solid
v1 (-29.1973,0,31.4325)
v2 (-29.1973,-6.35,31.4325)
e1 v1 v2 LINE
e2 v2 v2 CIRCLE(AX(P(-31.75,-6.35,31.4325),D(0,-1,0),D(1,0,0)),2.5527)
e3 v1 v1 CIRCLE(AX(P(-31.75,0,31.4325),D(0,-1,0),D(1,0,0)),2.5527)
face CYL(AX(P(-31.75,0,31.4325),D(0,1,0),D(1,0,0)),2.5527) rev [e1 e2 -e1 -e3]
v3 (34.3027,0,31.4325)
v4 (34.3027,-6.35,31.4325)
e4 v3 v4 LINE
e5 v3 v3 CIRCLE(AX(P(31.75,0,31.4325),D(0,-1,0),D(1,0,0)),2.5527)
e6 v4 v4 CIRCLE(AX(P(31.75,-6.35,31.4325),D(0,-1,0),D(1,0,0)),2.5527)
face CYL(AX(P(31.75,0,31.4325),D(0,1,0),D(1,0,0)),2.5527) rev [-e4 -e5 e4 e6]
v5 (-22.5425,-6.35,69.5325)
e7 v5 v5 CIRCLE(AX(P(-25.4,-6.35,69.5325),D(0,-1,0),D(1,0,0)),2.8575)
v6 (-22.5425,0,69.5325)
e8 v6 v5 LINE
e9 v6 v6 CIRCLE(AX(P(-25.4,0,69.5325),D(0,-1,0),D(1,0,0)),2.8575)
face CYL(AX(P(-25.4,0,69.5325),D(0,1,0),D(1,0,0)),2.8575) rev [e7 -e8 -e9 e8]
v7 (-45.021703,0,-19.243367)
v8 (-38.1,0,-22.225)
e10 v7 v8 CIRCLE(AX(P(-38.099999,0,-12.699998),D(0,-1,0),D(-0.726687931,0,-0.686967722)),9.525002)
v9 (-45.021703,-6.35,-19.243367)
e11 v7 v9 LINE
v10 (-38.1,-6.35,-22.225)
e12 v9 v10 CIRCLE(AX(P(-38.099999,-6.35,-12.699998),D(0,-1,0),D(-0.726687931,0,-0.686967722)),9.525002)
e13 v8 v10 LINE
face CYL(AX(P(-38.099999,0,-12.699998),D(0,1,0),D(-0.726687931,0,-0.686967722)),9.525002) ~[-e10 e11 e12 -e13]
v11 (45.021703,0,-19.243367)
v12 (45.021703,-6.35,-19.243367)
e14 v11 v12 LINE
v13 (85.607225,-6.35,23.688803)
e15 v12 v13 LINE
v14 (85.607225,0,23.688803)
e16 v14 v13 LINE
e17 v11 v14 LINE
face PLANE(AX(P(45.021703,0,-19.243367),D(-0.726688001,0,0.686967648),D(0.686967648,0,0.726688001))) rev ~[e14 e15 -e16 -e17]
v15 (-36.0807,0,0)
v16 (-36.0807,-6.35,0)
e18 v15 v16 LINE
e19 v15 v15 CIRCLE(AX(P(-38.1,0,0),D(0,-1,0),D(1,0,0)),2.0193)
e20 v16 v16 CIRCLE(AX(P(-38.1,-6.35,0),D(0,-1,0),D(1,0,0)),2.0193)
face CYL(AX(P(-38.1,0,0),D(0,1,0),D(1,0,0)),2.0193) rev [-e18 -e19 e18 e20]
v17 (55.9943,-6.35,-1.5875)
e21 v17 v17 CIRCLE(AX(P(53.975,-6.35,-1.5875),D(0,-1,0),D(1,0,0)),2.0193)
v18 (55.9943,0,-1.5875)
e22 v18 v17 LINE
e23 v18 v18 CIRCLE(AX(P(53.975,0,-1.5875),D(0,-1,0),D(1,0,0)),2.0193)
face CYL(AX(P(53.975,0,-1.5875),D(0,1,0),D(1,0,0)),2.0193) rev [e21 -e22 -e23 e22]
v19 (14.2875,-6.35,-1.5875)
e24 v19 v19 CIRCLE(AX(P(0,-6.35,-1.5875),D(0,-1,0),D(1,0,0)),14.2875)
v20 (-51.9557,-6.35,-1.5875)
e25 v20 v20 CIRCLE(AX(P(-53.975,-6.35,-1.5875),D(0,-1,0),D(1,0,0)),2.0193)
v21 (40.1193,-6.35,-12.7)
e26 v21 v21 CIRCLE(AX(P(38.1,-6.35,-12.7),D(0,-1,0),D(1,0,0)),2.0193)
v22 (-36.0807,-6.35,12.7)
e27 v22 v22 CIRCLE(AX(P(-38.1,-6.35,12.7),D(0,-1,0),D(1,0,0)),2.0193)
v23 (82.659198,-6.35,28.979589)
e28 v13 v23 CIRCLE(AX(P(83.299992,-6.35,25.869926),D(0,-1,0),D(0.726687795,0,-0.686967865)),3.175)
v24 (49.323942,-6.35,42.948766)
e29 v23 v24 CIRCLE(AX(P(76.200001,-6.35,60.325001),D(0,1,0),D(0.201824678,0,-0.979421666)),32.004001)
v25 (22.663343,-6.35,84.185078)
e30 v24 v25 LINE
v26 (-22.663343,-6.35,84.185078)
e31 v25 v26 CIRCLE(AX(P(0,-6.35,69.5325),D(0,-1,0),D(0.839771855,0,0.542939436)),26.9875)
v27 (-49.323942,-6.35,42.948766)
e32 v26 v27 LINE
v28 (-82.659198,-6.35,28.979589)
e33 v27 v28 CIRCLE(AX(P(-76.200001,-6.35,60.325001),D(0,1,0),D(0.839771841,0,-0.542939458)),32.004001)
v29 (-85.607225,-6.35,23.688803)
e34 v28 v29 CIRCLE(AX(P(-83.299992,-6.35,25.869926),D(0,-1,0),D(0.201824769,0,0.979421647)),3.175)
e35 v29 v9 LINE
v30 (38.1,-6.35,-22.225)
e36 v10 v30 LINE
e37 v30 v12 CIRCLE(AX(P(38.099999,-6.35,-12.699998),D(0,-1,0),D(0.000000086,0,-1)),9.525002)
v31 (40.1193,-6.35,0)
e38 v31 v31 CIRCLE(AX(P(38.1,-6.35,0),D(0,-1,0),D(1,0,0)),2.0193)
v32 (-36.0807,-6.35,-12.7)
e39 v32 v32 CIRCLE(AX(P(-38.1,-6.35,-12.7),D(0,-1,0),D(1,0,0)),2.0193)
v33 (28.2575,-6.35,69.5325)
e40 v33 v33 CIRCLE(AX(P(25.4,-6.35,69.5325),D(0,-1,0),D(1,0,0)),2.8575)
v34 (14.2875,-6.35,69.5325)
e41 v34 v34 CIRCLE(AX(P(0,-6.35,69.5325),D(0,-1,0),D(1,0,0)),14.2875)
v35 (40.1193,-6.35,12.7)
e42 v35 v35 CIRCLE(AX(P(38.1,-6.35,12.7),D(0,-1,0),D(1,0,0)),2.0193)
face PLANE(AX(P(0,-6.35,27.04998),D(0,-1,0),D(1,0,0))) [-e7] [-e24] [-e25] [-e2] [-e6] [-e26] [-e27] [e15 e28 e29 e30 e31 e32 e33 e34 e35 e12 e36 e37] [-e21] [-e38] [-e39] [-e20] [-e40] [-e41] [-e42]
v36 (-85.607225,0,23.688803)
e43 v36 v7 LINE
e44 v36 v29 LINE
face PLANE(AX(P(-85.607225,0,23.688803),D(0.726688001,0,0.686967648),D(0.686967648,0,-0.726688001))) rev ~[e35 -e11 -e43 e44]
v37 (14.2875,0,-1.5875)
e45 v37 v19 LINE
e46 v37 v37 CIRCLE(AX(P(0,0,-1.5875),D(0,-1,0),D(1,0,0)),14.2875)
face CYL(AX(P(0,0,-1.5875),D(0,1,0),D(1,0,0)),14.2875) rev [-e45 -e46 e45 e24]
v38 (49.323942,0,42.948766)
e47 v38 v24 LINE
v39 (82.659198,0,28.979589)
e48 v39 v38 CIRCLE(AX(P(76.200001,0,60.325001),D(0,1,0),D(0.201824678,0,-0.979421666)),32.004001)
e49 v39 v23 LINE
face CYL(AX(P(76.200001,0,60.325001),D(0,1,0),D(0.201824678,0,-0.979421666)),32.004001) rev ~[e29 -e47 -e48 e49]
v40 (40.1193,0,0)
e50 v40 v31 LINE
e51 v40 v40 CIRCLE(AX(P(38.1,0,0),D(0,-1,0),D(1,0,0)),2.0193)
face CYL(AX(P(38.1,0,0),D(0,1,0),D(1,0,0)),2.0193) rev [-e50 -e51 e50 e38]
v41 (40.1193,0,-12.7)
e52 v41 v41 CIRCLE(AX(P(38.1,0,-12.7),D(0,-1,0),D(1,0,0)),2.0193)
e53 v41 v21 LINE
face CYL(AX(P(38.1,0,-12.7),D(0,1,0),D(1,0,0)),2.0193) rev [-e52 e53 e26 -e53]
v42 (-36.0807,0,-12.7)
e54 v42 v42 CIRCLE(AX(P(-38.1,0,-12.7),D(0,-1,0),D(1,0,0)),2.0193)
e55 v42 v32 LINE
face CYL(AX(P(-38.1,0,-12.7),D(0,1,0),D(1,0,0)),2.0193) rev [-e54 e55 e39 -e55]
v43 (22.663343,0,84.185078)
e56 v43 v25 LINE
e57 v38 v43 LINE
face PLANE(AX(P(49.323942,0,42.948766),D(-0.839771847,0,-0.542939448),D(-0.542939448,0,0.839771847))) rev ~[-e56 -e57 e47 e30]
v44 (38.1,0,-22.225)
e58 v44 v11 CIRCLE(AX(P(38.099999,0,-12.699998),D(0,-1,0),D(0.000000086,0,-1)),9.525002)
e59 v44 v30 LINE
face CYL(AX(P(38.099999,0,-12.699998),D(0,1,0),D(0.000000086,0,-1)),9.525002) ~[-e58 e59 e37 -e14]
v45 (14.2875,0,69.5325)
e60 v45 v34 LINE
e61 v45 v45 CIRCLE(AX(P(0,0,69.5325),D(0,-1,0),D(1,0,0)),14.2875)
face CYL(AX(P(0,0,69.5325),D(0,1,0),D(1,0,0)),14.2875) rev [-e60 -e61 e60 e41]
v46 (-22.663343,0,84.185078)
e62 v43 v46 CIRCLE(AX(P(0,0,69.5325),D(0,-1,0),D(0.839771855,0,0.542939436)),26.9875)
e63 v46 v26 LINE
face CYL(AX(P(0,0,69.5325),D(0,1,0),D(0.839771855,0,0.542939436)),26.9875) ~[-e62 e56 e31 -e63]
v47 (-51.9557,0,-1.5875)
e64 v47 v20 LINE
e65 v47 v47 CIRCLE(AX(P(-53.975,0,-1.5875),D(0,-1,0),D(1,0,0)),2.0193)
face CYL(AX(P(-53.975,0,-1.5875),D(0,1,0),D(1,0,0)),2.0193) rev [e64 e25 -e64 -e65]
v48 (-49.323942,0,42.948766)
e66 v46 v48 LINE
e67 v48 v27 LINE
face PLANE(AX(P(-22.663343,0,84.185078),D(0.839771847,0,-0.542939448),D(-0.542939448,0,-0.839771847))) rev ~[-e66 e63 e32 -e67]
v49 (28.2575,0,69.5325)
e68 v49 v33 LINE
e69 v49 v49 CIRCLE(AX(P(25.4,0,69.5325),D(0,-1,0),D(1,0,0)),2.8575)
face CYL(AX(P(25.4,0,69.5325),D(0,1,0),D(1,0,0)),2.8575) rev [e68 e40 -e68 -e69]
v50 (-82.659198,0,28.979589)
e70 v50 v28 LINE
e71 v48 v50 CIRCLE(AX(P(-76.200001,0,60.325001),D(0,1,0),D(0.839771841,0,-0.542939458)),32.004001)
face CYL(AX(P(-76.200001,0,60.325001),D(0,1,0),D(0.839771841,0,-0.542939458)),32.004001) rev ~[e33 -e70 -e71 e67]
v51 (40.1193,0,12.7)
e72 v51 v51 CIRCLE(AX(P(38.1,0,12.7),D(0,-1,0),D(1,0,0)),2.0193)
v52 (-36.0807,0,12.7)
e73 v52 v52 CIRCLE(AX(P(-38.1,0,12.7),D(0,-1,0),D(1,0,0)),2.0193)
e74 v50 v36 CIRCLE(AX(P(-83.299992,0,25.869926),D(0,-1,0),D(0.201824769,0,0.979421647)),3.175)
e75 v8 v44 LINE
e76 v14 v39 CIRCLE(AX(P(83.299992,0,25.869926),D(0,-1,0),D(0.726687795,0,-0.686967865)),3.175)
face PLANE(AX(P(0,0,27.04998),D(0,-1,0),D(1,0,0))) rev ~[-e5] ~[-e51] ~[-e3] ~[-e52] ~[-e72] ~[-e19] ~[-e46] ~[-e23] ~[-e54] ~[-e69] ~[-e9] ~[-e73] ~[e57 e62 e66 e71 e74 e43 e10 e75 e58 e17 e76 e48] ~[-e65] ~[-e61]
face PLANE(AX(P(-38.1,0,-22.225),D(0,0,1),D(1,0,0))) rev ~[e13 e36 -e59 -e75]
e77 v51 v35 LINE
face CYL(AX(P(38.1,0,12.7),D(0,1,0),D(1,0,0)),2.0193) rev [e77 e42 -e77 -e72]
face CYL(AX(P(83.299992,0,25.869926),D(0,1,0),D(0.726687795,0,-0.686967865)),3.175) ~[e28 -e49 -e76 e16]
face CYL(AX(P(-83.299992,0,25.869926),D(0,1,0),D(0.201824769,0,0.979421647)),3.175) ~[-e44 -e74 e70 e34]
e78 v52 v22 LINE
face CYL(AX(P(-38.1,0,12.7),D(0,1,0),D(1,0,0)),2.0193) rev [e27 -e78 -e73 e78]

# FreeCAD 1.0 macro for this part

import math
import FreeCAD as App
import Part
import Sketcher
from FreeCAD import Vector
Q = App.Units.Quantity

doc = App.newDocument("Part")
params = doc.addObject("Spreadsheet::Sheet", "Params")
for row, (alias, value) in enumerate([
    ("sketch1_width", "3 in"),
    ("sketch1_radius", "1.26 in"),
    ("sketch1_diameter", "0.159 in"),
    ("sketch1_diameter2", "1.125 in"),
    ("sketch1_diameter3", "0.201 in"),
    ("pad1_length", "0.25 in"),
], start=1):
    params.set(f"A{row}", alias)
    params.set(f"B{row}", "=" + value)
    params.setAlias(f"B{row}", alias)

body = doc.addObject("PartDesign::Body", "Body")

# Sketch on XZ plane
sketch1 = doc.addObject("Sketcher::SketchObject", "Sketch")
body.addObject(sketch1)
sketch1.AttachmentSupport = (doc.XZ_Plane, [""])
sketch1.MapMode = "FlatFace"
sketch1.addGeometry([
    Part.ArcOfCircle(Part.Circle(Vector(-76.200001, 60.325001, 0), Vector(0, 0, 1), 32.004001), math.radians(-101.643682), math.radians(-32.883966)),  # 0
    Part.ArcOfCircle(Part.Circle(Vector(-83.299992, 25.869926, 0), Vector(0, 0, 1), 3.175), math.radians(78.356313), math.radians(223.390566)),  # 1
    Part.LineSegment(Vector(-85.607225, 23.688803, 0), Vector(-45.021703, -19.243367, 0)),  # 2
    Part.ArcOfCircle(Part.Circle(Vector(-38.099999, -12.699998, 0), Vector(0, 0, 1), 9.525002), math.radians(-136.609446), math.radians(-90.000005)),  # 3
    Part.LineSegment(Vector(-38.1, -22.225, 0), Vector(38.1, -22.225, 0)),  # 4
    Part.ArcOfCircle(Part.Circle(Vector(38.099999, -12.699998, 0), Vector(0, 0, 1), 9.525002), math.radians(-89.999995), math.radians(-43.390554)),  # 5
    Part.LineSegment(Vector(45.021703, -19.243367, 0), Vector(85.607225, 23.688803, 0)),  # 6
    Part.ArcOfCircle(Part.Circle(Vector(83.299992, 25.869926, 0), Vector(0, 0, 1), 3.175), math.radians(-43.390566), math.radians(101.643687)),  # 7
    Part.ArcOfCircle(Part.Circle(Vector(76.200001, 60.325001, 0), Vector(0, 0, 1), 32.004001), math.radians(-147.116034), math.radians(-78.356318)),  # 8
    Part.LineSegment(Vector(49.323942, 42.948766, 0), Vector(22.663343, 84.185078, 0)),  # 9
    Part.ArcOfCircle(Part.Circle(Vector(0, 69.5325, 0), Vector(0, 0, 1), 26.9875), math.radians(32.883964), math.radians(147.116036)),  # 10
    Part.LineSegment(Vector(-22.663343, 84.185078, 0), Vector(-49.323942, 42.948766, 0)),  # 11
    Part.Circle(Vector(-38.1, -12.7, 0), Vector(0, 0, 1), 2.0193),  # 12
    Part.Circle(Vector(-53.975, -1.5875, 0), Vector(0, 0, 1), 2.0193),  # 13
    Part.Circle(Vector(-38.1, 0, 0), Vector(0, 0, 1), 2.0193),  # 14
    Part.Circle(Vector(0, -1.5875, 0), Vector(0, 0, 1), 14.2875),  # 15
    Part.Circle(Vector(-38.1, 12.7, 0), Vector(0, 0, 1), 2.0193),  # 16
    Part.Circle(Vector(-31.75, 31.4325, 0), Vector(0, 0, 1), 2.5527),  # 17
    Part.Circle(Vector(38.1, -12.7, 0), Vector(0, 0, 1), 2.0193),  # 18
    Part.Circle(Vector(38.1, 0, 0), Vector(0, 0, 1), 2.0193),  # 19
    Part.Circle(Vector(53.975, -1.5875, 0), Vector(0, 0, 1), 2.0193),  # 20
    Part.Circle(Vector(38.1, 12.7, 0), Vector(0, 0, 1), 2.0193),  # 21
    Part.Circle(Vector(31.75, 31.4325, 0), Vector(0, 0, 1), 2.5527),  # 22
    Part.Circle(Vector(-25.4, 69.5325, 0), Vector(0, 0, 1), 2.8575),  # 23
    Part.Circle(Vector(0, 69.5325, 0), Vector(0, 0, 1), 14.2875),  # 24
    Part.Circle(Vector(25.4, 69.5325, 0), Vector(0, 0, 1), 2.8575),  # 25
], False)
sketch1.addConstraint([
    Sketcher.Constraint("Tangent", 0, 1, 1, 1),
    Sketcher.Constraint("Tangent", 1, 2, 2, 1),
    Sketcher.Constraint("Tangent", 2, 2, 3, 1),
    Sketcher.Constraint("Tangent", 3, 2, 4, 1),
    Sketcher.Constraint("Tangent", 4, 2, 5, 1),
    Sketcher.Constraint("Tangent", 5, 2, 6, 1),
    Sketcher.Constraint("Tangent", 6, 2, 7, 1),
    Sketcher.Constraint("Tangent", 7, 2, 8, 2),
    Sketcher.Constraint("Tangent", 8, 1, 9, 1),
    Sketcher.Constraint("Tangent", 9, 2, 10, 1),
    Sketcher.Constraint("Tangent", 10, 2, 11, 1),
    Sketcher.Constraint("Tangent", 11, 2, 0, 2),
    Sketcher.Constraint("Horizontal", 4),
    Sketcher.Constraint("Coincident", 12, 3, 3, 3),
    Sketcher.Constraint("Coincident", 18, 3, 5, 3),
    Sketcher.Constraint("Coincident", 24, 3, 10, 3),
    Sketcher.Constraint("Equal", 3, 5),
    Sketcher.Constraint("Equal", 1, 7),
    Sketcher.Constraint("Equal", 0, 8),
    Sketcher.Constraint("Equal", 12, 13),
    Sketcher.Constraint("Equal", 13, 14),
    Sketcher.Constraint("Equal", 14, 16),
    Sketcher.Constraint("Equal", 16, 18),
    Sketcher.Constraint("Equal", 18, 19),
    Sketcher.Constraint("Equal", 19, 20),
    Sketcher.Constraint("Equal", 20, 21),
    Sketcher.Constraint("Equal", 17, 22),
    Sketcher.Constraint("Equal", 15, 24),
    Sketcher.Constraint("Equal", 23, 25),
    Sketcher.Constraint("Symmetric", 5, 3, 16, 3, -1, 1),
    Sketcher.Constraint("Symmetric", 14, 3, 19, 3, -1, 1),
    Sketcher.Constraint("Symmetric", 3, 3, 21, 3, -1, 1),
    Sketcher.Constraint("Symmetric", 1, 3, 7, 3, -2),
    Sketcher.Constraint("Symmetric", 13, 3, 20, 3, -2),
    Sketcher.Constraint("Symmetric", 17, 3, 22, 3, -2),
    Sketcher.Constraint("Symmetric", 23, 3, 25, 3, -2),
    Sketcher.Constraint("Symmetric", 9, 2, 10, 2, -2),
    Sketcher.Constraint("PointOnObject", 14, 3, -1),
    Sketcher.Constraint("PointOnObject", 15, 3, -2),
    Sketcher.Constraint("Horizontal", 13, 3, 15, 3),
    Sketcher.Constraint("Horizontal", 10, 3, 23, 3),
    Sketcher.Constraint("Horizontal", 2, 2, 5, 2),
    Sketcher.Constraint("Vertical", 12, 3, 14, 3),
    Sketcher.Constraint("DistanceX", 4, 1, 4, 2, Q("3 in")),
    Sketcher.Constraint("Radius", 0, Q("1.26 in")),
    Sketcher.Constraint("Diameter", 12, Q("0.159 in")),
    Sketcher.Constraint("Diameter", 15, Q("1.125 in")),
    Sketcher.Constraint("Diameter", 17, Q("0.201 in")),
    Sketcher.Constraint("Diameter", 23, Q("0.225 in")),
    Sketcher.Constraint("DistanceX", 0, 3, -1, 1, Q("3 in")),
    Sketcher.Constraint("DistanceX", 23, 3, -1, 1, Q("1 in")),
    Sketcher.Constraint("Radius", 1, Q("0.125 in")),
    Sketcher.Constraint("Radius", 3, Q("0.3750001 in")),
    Sketcher.Constraint("Radius", 10, Q("1.0625 in")),
    Sketcher.Constraint("DistanceY", 3, 3, 16, 3, Q("0.9999999 in")),
    Sketcher.Constraint("DistanceY", 13, 3, 10, 3, Q("2.8 in")),
    Sketcher.Constraint("DistanceY", 13, 3, 17, 3, Q("1.3 in")),
    Sketcher.Constraint("DistanceX", 17, 3, -1, 1, Q("1.25 in")),
    Sketcher.Constraint("DistanceY", -1, 1, 0, 3, Q("2.375 in")),
    Sketcher.Constraint("DistanceX", 13, 3, -1, 1, Q("2.125 in")),
    Sketcher.Constraint("DistanceY", 13, 3, -1, 1, Q("0.0625 in")),
    Sketcher.Constraint("DistanceX", 0, 1, -1, 1, 82.659198),
])
sketch1.setExpression("Constraints[43]", "Params.sketch1_width")
sketch1.setExpression("Constraints[44]", "Params.sketch1_radius")
sketch1.setExpression("Constraints[45]", "Params.sketch1_diameter")
sketch1.setExpression("Constraints[46]", "Params.sketch1_diameter2")
sketch1.setExpression("Constraints[47]", "Params.sketch1_diameter3")
pad1 = doc.addObject("PartDesign::Pad", "Pad")
body.addObject(pad1)
pad1.Profile = sketch1
pad1.setExpression("Length", "Params.pad1_length")

doc.recompute()
